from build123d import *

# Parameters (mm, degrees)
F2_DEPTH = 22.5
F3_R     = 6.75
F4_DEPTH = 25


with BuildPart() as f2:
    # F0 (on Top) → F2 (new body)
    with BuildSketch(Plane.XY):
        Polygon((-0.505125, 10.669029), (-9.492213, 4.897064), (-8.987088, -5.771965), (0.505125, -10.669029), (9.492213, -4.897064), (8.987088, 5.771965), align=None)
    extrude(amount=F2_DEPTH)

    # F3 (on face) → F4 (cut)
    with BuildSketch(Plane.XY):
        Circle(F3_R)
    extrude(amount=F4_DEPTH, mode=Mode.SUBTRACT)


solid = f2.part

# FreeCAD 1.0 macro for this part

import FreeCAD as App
import Part
import Sketcher
from FreeCAD import Vector


def add_polygon(sketch, points):
    """Adds a closed chain of lines whose ends are joined by coincident constraints."""
    first, n = sketch.GeometryCount, len(points)
    for a, b in zip(points, points[1:] + points[:1]):
        sketch.addGeometry(Part.LineSegment(App.Vector(*a, 0), App.Vector(*b, 0)), False)
    for i in range(n):
        sketch.addConstraint(Sketcher.Constraint("Coincident", first + i, 2, first + (i + 1) % n, 1))

doc = App.newDocument("Part")
body = doc.addObject("PartDesign::Body", "Body")

# Sketch on XY plane
sketch1 = body.newObject("Sketcher::SketchObject", "Sketch")
sketch1.AttachmentSupport = (doc.getObject("XY_Plane"), [""])
sketch1.MapMode = "FlatFace"
add_polygon(sketch1, [(-0.505125, 10.669029), (-9.492213, 4.897064), (-8.987088, -5.771965), (0.505125, -10.669029), (9.492213, -4.897064), (8.987088, 5.771965)])  # lines 0-5
sketch1.addConstraint([
    Sketcher.Constraint("Symmetric", 0, 2, 3, 2, -1, 1),
    Sketcher.Constraint("Symmetric", 1, 2, 4, 2, -1, 1),
    Sketcher.Constraint("Symmetric", 2, 2, 5, 2, -1, 1),
    Sketcher.Constraint("Equal", 0, 1),
    Sketcher.Constraint("Equal", 1, 2),
    Sketcher.Constraint("DistanceX", 1, 2, 3, 2, 18.479301),
    Sketcher.Constraint("DistanceY", 1, 2, 3, 2, 0.874901),
    Sketcher.Constraint("Distance", 0, 10.68098),
    Sketcher.Constraint("DistanceY", 2, 2, -1, 1, 10.669029),
])
pad1 = body.newObject("PartDesign::Pad", "Pad")
pad1.Profile = sketch1
pad1.Length = 22.5

# Sketch on XY plane
sketch2 = body.newObject("Sketcher::SketchObject", "Sketch001")
sketch2.AttachmentSupport = (doc.getObject("XY_Plane"), [""])
sketch2.MapMode = "FlatFace"
sketch2.addGeometry(Part.Circle(Vector(0, 0, 0), Vector(0, 0, 1), 7), False)
sketch2.addConstraint([
    Sketcher.Constraint("Coincident", 0, 3, -1, 1),
    Sketcher.Constraint("Diameter", 0, 13.5),
])
pocket1 = body.newObject("PartDesign::Pocket", "Pocket")
pocket1.Profile = sketch2
pocket1.Length = 25
pocket1.Reversed = True

doc.recompute()
